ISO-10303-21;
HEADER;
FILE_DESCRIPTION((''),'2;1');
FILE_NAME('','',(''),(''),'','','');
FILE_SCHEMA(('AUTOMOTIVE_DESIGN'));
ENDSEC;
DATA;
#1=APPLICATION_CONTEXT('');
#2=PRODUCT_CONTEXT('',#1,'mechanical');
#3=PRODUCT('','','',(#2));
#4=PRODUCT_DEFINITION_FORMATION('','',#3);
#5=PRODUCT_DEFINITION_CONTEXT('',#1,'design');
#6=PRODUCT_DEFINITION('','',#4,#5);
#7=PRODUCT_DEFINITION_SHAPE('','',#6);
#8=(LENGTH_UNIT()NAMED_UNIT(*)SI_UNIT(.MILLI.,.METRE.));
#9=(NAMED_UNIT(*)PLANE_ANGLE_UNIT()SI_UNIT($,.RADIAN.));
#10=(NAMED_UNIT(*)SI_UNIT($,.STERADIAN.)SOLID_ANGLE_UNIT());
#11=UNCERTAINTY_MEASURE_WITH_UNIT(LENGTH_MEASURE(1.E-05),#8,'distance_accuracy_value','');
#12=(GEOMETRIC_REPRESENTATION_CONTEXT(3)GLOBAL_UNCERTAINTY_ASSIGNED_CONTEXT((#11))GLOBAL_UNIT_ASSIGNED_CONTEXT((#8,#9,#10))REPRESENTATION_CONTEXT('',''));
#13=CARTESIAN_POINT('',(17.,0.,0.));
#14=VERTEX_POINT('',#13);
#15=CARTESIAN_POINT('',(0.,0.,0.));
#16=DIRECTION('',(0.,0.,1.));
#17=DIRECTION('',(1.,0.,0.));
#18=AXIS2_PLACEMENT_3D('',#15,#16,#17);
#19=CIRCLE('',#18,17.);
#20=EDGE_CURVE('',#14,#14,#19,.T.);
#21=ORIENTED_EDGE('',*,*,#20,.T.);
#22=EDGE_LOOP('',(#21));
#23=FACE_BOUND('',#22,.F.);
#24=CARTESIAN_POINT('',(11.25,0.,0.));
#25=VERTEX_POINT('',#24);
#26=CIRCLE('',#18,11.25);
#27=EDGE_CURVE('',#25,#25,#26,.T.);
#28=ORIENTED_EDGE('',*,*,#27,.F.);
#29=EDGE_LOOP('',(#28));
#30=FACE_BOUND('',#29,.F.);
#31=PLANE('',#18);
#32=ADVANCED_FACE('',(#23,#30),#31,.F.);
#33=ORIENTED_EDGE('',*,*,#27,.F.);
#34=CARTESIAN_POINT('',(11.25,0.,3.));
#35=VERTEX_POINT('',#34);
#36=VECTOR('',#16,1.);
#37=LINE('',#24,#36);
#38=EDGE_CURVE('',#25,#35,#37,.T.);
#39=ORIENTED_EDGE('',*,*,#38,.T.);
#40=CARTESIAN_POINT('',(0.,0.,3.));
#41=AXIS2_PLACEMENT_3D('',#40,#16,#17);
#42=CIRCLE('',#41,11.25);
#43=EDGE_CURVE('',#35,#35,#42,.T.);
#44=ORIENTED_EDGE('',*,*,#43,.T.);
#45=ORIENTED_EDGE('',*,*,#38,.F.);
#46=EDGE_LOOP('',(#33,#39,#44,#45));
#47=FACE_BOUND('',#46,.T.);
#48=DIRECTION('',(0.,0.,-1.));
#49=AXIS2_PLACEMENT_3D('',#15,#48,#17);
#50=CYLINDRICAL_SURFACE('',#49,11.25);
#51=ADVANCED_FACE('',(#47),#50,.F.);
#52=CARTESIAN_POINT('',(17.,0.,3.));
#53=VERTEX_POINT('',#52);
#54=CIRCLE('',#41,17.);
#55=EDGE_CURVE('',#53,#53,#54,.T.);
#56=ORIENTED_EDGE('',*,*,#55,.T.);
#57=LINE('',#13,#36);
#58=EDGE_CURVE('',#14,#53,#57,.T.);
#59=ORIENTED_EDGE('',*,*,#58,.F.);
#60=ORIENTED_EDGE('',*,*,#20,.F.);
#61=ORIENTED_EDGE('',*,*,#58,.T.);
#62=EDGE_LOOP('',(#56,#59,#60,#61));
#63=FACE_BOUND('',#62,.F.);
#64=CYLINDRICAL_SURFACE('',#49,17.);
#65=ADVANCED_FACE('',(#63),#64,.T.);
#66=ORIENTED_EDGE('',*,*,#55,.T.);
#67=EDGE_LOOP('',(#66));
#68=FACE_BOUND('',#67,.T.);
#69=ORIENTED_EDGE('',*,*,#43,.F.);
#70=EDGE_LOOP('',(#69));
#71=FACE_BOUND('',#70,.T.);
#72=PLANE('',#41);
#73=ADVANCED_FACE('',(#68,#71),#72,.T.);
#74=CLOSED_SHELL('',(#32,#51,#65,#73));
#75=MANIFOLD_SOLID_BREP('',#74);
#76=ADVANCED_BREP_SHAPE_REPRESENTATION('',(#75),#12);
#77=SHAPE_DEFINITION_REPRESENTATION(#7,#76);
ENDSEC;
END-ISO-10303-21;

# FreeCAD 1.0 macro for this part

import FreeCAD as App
import Part
import Sketcher
from FreeCAD import Vector
Q = App.Units.Quantity

doc = App.newDocument("Part")
body = doc.addObject("PartDesign::Body", "Body")

sketch1 = body.newObject("Sketcher::SketchObject", "Sketch")
sketch1.AttachmentSupport = (doc.getObject("XY_Plane"), [""])
sketch1.MapMode = "FlatFace"
sketch1.addGeometry(Part.Circle(Vector(0, 0, 0), Vector(0, 0, 1), 17), False)
sketch1.addGeometry(Part.Circle(Vector(0, 0, 0), Vector(0, 0, 1), 11), False)
sketch1.addConstraint(Sketcher.Constraint("Coincident", 0, 3, -1, 1))
sketch1.addConstraint(Sketcher.Constraint("Coincident", 1, 3, -1, 1))
sketch1.addConstraint(Sketcher.Constraint("Diameter", 0, Q("34 mm")))
sketch1.addConstraint(Sketcher.Constraint("Diameter", 1, Q("22.5 mm")))
pad1 = body.newObject("PartDesign::Pad", "Pad")
pad1.Profile = sketch1
pad1.Length = 3

doc.recompute()
